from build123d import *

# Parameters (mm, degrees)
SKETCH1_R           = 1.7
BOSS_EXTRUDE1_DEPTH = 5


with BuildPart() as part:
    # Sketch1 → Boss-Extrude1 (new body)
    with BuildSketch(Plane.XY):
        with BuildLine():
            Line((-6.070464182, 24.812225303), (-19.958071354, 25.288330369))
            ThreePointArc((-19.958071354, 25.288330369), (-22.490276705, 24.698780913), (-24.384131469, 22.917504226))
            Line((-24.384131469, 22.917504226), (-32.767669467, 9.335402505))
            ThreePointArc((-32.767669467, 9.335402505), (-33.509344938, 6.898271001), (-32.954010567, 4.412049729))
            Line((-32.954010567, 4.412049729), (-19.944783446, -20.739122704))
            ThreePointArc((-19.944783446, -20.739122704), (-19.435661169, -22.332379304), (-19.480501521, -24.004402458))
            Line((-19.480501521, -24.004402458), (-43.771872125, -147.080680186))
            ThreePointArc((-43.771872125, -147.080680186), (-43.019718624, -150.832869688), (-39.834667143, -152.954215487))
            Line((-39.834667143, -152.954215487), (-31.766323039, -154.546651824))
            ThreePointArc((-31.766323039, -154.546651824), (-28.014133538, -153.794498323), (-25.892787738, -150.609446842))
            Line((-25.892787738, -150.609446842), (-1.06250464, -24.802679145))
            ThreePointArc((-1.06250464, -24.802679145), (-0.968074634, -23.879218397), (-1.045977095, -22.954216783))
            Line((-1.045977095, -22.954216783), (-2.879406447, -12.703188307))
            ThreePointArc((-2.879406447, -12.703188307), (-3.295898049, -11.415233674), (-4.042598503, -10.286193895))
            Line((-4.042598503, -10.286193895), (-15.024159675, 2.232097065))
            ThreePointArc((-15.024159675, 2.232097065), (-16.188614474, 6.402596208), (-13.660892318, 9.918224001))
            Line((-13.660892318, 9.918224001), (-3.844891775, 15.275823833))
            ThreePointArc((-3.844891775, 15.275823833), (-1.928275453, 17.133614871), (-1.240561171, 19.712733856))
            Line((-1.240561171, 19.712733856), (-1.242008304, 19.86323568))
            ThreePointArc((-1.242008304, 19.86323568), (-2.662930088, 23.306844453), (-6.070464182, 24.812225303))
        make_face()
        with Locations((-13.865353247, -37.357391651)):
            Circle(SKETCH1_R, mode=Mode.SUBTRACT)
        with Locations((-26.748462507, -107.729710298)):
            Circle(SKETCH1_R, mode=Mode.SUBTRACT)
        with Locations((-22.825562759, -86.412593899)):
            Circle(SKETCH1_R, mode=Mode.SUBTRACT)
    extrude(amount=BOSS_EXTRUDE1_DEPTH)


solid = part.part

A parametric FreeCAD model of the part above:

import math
import FreeCAD as App
import Part
import Sketcher

V = App.Vector
Q = App.Units.Quantity

doc = App.newDocument("Part")
body = doc.addObject("PartDesign::Body", "Body")

# Sketch on XY plane
sketch1 = body.newObject("Sketcher::SketchObject", "Sketch")
sketch1.AttachmentSupport = (doc.getObject("XY_Plane"), [""])
sketch1.MapMode = "FlatFace"
sketch1.addGeometry([
    Part.LineSegment(V(-6.070464, 24.812225, 0), V(-19.958071, 25.28833, 0)),  # 0
    Part.ArcOfCircle(Part.Circle(V(-20.129384, 20.291266, 0), V(0, 0, 1), 5), math.radians(88.036513), math.radians(148.315085)),  # 1
    Part.LineSegment(V(-24.384131, 22.917504, 0), V(-32.767669, 9.335403, 0)),  # 2
    Part.ArcOfCircle(Part.Circle(V(-28.512922, 6.709164, 0), V(0, 0, 1), 5), math.radians(148.315085), math.radians(207.349876)),  # 3
    Part.LineSegment(V(-32.954011, 4.41205, 0), V(-19.944783, -20.739123, 0)),  # 4
    Part.ArcOfCircle(Part.Circle(V(-24.385872, -23.036237, 0), V(0, 0, 1), 5), math.radians(-11.16488), math.radians(27.349876)),  # 5
    Part.LineSegment(V(-19.480502, -24.004402, 0), V(-43.771872, -147.08068, 0)),  # 6
    Part.ArcOfCircle(Part.Circle(V(-38.866502, -148.048845, 0), V(0, 0, 1), 5), math.radians(168.83512), math.radians(258.83512)),  # 7
    Part.LineSegment(V(-39.834667, -152.954215, 0), V(-31.766323, -154.546652, 0)),  # 8
    Part.ArcOfCircle(Part.Circle(V(-30.798158, -149.641282, 0), V(0, 0, 1), 5), math.radians(-101.16488), math.radians(-11.16488)),  # 9
    Part.LineSegment(V(-25.892788, -150.609447, 0), V(-1.062505, -24.802679, 0)),  # 10
    Part.ArcOfCircle(Part.Circle(V(-5.967875, -23.834514, 0), V(0, 0, 1), 5), math.radians(-11.16488), math.radians(10.140317)),  # 11
    Part.LineSegment(V(-1.045977, -22.954217, 0), V(-2.879406, -12.703188, 0)),  # 12
    Part.ArcOfCircle(Part.Circle(V(-7.801304, -13.583486, 0), V(0, 0, 1), 5), math.radians(10.140317), math.radians(41.258575)),  # 13
    Part.LineSegment(V(-4.042599, -10.286194, 0), V(-15.02416, 2.232097, 0)),  # 14
    Part.ArcOfCircle(Part.Circle(V(-11.265454, 5.529389, 0), V(0, 0, 1), 5), math.radians(118.625832), math.radians(221.258574)),  # 15
    Part.LineSegment(V(-13.660892, 9.918224, 0), V(-3.844892, 15.275824, 0)),  # 16
    Part.ArcOfCircle(Part.Circle(V(-6.24033, 19.664659, 0), V(0, 0, 1), 5), math.radians(-61.374168), math.radians(0.550904)),  # 17
    Part.LineSegment(V(-1.240561, 19.712734, 0), V(-1.242008, 19.863236, 0)),  # 18
    Part.ArcOfCircle(Part.Circle(V(-6.241777, 19.815161, 0), V(0, 0, 1), 5), math.radians(0.550904), math.radians(88.036513)),  # 19
    Part.Circle(V(-26.748463, -107.72971, 0), V(0, 0, 1), 1.7),  # 20
    Part.Circle(V(-22.825563, -86.412594, 0), V(0, 0, 1), 1.7),  # 21
    Part.Circle(V(-13.865353, -37.357392, 0), V(0, 0, 1), 1.7),  # 22
], False)
sketch1.addConstraint([
    Sketcher.Constraint("Coincident", 0, 2, 1, 1),
    Sketcher.Constraint("Coincident", 1, 2, 2, 1),
    Sketcher.Constraint("Coincident", 2, 2, 3, 1),
    Sketcher.Constraint("Coincident", 3, 2, 4, 1),
    Sketcher.Constraint("Coincident", 4, 2, 5, 2),
    Sketcher.Constraint("Coincident", 5, 1, 6, 1),
    Sketcher.Constraint("Coincident", 6, 2, 7, 1),
    Sketcher.Constraint("Coincident", 7, 2, 8, 1),
    Sketcher.Constraint("Coincident", 8, 2, 9, 1),
    Sketcher.Constraint("Coincident", 9, 2, 10, 1),
    Sketcher.Constraint("Coincident", 10, 2, 11, 1),
    Sketcher.Constraint("Coincident", 11, 2, 12, 1),
    Sketcher.Constraint("Coincident", 12, 2, 13, 1),
    Sketcher.Constraint("Coincident", 13, 2, 14, 1),
    Sketcher.Constraint("Coincident", 14, 2, 15, 2),
    Sketcher.Constraint("Coincident", 15, 1, 16, 1),
    Sketcher.Constraint("Coincident", 16, 2, 17, 1),
    Sketcher.Constraint("Coincident", 17, 2, 18, 1),
    Sketcher.Constraint("Coincident", 18, 2, 19, 1),
    Sketcher.Constraint("Coincident", 19, 2, 0, 1),
    Sketcher.Constraint("Radius", 1, Q("5 mm")),
    Sketcher.Constraint("Radius", 3, Q("5 mm")),
    Sketcher.Constraint("Radius", 5, Q("5 mm")),
    Sketcher.Constraint("Radius", 7, Q("5 mm")),
    Sketcher.Constraint("Radius", 9, Q("5 mm")),
    Sketcher.Constraint("Radius", 11, Q("5 mm")),
    Sketcher.Constraint("Radius", 13, Q("5 mm")),
    Sketcher.Constraint("Radius", 15, Q("5 mm")),
    Sketcher.Constraint("Radius", 17, Q("5 mm")),
    Sketcher.Constraint("Radius", 19, Q("5 mm")),
    Sketcher.Constraint("Diameter", 20, Q("3.4 mm")),
    Sketcher.Constraint("Diameter", 21, Q("3.4 mm")),
    Sketcher.Constraint("Diameter", 22, Q("3.4 mm")),
    Sketcher.Constraint("DistanceX", 15, 1, 16, 2, Q("9.816001 mm")),
    Sketcher.Constraint("DistanceX", 7, 3, -1, 1, Q("38.866502 mm")),
    Sketcher.Constraint("DistanceX", 5, 1, -1, 1, Q("19.480502 mm")),
    Sketcher.Constraint("DistanceX", 13, 2, -1, 1, Q("4.042599 mm")),
    Sketcher.Constraint("DistanceY", 3, 3, 1, 3, Q("13.582102 mm")),
    Sketcher.Constraint("DistanceY", 5, 3, 3, 3, Q("29.745402 mm")),
    Sketcher.Constraint("DistanceY", 17, 3, 19, 3, Q("0.150502 mm")),
    Sketcher.Constraint("DistanceX", 20, 3, 21, 3, Q("3.9229 mm")),
    Sketcher.Constraint("DistanceX", 22, 3, 15, 3, Q("2.599899 mm")),
    Sketcher.Constraint("DistanceX", 1, 2, 17, 3, Q("18.143801 mm")),
    Sketcher.Constraint("DistanceY", 2, 2, 1, 2, Q("13.582102 mm")),
    Sketcher.Constraint("DistanceX", 2, 2, 0, 2, Q("12.809598 mm")),
    Sketcher.Constraint("DistanceY", 9, 3, 6, 2, Q("2.560601 mm")),
    Sketcher.Constraint("DistanceY", 9, 2, 7, 3, Q("2.560601 mm")),
    Sketcher.Constraint("DistanceX", 13, 3, 10, 2, Q("6.738799 mm")),
    Sketcher.Constraint("DistanceX", 12, 2, 10, 2, Q("1.816902 mm")),
    Sketcher.Constraint("DistanceY", 15, 1, 16, 2, Q("5.3576 mm")),
    Sketcher.Constraint("DistanceY", 17, 2, 18, 2, Q("0.150502 mm")),
    Sketcher.Constraint("DistanceY", 16, 2, 19, 2, Q("9.536401 mm")),
    Sketcher.Constraint("Distance", 6, Q("125.450551 mm")),
    Sketcher.Constraint("Distance", 8, Q("8.223991 mm")),
    Sketcher.Constraint("Distance", 18, Q("0.150509 mm")),
    Sketcher.Constraint("DistanceX", 5, 3, -1, 1, Q("24.385872 mm")),
    Sketcher.Constraint("DistanceY", 9, 3, -1, 1, Q("149.641282 mm")),
    Sketcher.Constraint("DistanceY", -1, 1, 15, 3, Q("5.529389 mm")),
    Sketcher.Constraint("DistanceX", 17, 3, -1, 1, Q("6.24033 mm")),
    Sketcher.Constraint("DistanceY", -1, 1, 17, 3, Q("19.664659 mm")),
    Sketcher.Constraint("DistanceY", 20, 3, -1, 1, Q("107.72971 mm")),
    Sketcher.Constraint("DistanceY", 22, 3, -1, 1, Q("37.357392 mm")),
    Sketcher.Constraint("DistanceX", 0, 2, -1, 1, Q("19.958071 mm")),
    Sketcher.Constraint("DistanceY", -1, 1, 0, 2, Q("25.28833 mm")),
    Sketcher.Constraint("DistanceX", 3, 2, -1, 1, Q("32.954011 mm")),
    Sketcher.Constraint("DistanceY", -1, 1, 3, 2, Q("4.41205 mm")),
    Sketcher.Constraint("DistanceY", 8, 2, -1, 1, Q("154.546652 mm")),
    Sketcher.Constraint("DistanceY", 10, 2, -1, 1, Q("24.802679 mm")),
    Sketcher.Constraint("DistanceY", 12, 2, -1, 1, Q("12.703188 mm")),
    Sketcher.Constraint("DistanceX", 14, 2, -1, 1, Q("15.02416 mm")),
    Sketcher.Constraint("DistanceX", 16, 2, -1, 1, Q("3.844892 mm")),
    Sketcher.Constraint("DistanceX", 17, 2, -1, 1, Q("1.240561 mm")),
    Sketcher.Constraint("DistanceY", 11, 3, 3, 3, Q("30.543678 mm")),
    Sketcher.Constraint("DistanceX", 1, 3, 11, 3, Q("14.16151 mm")),
    Sketcher.Constraint("DistanceX", 7, 3, 20, 3, Q("12.118039 mm")),
    Sketcher.Constraint("DistanceY", 7, 3, 21, 3, Q("61.636251 mm")),
    Sketcher.Constraint("DistanceX", 5, 3, 4, 2, Q("4.441088 mm")),
    Sketcher.Constraint("DistanceY", 7, 2, 7, 3, Q("4.90537 mm")),
    Sketcher.Constraint("DistanceY", 11, 2, 13, 3, Q("9.370731 mm")),
])
pad1 = body.newObject("PartDesign::Pad", "Pad")
pad1.Profile = sketch1
pad1.Length = 5

doc.recompute()
